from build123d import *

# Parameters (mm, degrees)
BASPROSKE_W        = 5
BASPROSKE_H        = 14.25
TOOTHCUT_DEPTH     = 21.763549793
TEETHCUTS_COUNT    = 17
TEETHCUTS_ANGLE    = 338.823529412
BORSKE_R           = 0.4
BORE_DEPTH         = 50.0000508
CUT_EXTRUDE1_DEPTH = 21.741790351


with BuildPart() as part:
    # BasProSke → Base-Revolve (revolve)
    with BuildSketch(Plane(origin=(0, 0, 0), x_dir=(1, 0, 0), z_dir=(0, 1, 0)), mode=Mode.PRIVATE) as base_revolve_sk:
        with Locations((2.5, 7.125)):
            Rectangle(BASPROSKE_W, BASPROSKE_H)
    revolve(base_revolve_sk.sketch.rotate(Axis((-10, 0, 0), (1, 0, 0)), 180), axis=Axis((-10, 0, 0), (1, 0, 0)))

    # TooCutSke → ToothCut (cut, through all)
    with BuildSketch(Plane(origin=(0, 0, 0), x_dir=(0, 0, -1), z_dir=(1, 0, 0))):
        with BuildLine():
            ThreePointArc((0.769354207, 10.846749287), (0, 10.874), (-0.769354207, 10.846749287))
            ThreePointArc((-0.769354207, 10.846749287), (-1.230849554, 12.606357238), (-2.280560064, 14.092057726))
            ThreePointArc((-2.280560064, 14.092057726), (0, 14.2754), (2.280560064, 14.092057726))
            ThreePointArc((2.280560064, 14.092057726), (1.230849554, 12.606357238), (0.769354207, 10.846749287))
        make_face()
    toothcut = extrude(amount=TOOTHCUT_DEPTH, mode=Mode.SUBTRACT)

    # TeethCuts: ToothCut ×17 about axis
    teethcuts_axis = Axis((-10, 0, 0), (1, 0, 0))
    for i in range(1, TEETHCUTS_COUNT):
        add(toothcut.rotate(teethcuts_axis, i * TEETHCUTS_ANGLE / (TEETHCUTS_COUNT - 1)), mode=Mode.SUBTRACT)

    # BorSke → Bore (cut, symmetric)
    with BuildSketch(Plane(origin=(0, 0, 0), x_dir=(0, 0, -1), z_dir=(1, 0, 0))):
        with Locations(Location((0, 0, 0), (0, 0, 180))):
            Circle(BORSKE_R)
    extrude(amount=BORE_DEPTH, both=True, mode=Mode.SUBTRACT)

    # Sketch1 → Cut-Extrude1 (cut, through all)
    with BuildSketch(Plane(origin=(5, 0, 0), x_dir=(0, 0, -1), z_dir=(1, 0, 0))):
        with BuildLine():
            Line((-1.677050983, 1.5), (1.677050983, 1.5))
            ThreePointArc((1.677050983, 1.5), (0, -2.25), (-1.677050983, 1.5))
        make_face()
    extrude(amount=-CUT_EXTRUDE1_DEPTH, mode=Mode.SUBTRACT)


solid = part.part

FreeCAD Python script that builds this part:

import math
import FreeCAD as App
import Part
import Sketcher
from FreeCAD import Vector
Q = App.Units.Quantity


def add_polygon(sketch, points):
    """Adds a closed chain of lines whose ends are joined by coincident constraints."""
    first, n = sketch.GeometryCount, len(points)
    for a, b in zip(points, points[1:] + points[:1]):
        sketch.addGeometry(Part.LineSegment(App.Vector(*a, 0), App.Vector(*b, 0)), False)
    for i in range(n):
        sketch.addConstraint(Sketcher.Constraint("Coincident", first + i, 2, first + (i + 1) % n, 1))

doc = App.newDocument("Part")
params = doc.addObject("Spreadsheet::Sheet", "Params")
for row, (alias, value) in enumerate([
    ("sketch1_width", "5 mm"),
    ("sketch1_height", "14.25 mm"),
    ("revolution_angle", "360 deg"),
    ("sketch2_radius", "5.1 mm"),
    ("sketch3_diameter", "0.8 mm"),
    ("pocket2_length", "100.000102 mm"),
    ("sketch4_radius", "2.25 mm"),
], start=1):
    params.set(f"A{row}", alias)
    params.set(f"B{row}", "=" + value)
    params.setAlias(f"B{row}", alias)

body = doc.addObject("PartDesign::Body", "Body")

# Sketch on XZ plane
sketch1 = body.newObject("Sketcher::SketchObject", "Sketch")
sketch1.AttachmentSupport = (doc.getObject("XZ_Plane"), [""])
sketch1.MapMode = "FlatFace"
add_polygon(sketch1, [(0, -14), (0, 0), (5, 0), (5, -14)])  # lines 0-3
sketch1.addConstraint([
    Sketcher.Constraint("Vertical", 0),
    Sketcher.Constraint("Horizontal", 1),
    Sketcher.Constraint("Vertical", 2),
    Sketcher.Constraint("Horizontal", 3),
    Sketcher.Constraint("Coincident", 0, 2, -1, 1),
    Sketcher.Constraint("DistanceX", 1, 1, 1, 2, Q("5 mm")),
    Sketcher.Constraint("DistanceY", 0, 1, 0, 2, Q("14.25 mm")),
])
sketch1.setExpression("Constraints[9]", "Params.sketch1_width")
sketch1.setExpression("Constraints[10]", "Params.sketch1_height")
revolution = body.newObject("PartDesign::Revolution", "Revolution")
revolution.Profile = sketch1
revolution.ReferenceAxis = (sketch1, ["H_Axis"])
revolution.setExpression("Angle", "Params.revolution_angle")

# Sketch on YZ plane
sketch2 = body.newObject("Sketcher::SketchObject", "Sketch001")
sketch2.AttachmentSupport = (doc.getObject("YZ_Plane"), [""])
sketch2.MapMode = "FlatFace"
sketch2.addGeometry([
    Part.ArcOfCircle(Part.Circle(Vector(0, 0, 0), Vector(0, 0, 1), 10.9), math.radians(-4.06), math.radians(4.06)),
    Part.ArcOfCircle(Part.Circle(Vector(10.5, -5.9, 0), Vector(0, 0, 1), 5.1), math.radians(44), math.radians(86)),
    Part.ArcOfCircle(Part.Circle(Vector(0, 0, 0), Vector(0, 0, 1), 14.3), math.radians(-9.19), math.radians(9.19)),
    Part.ArcOfCircle(Part.Circle(Vector(10.5, 5.9, 0), Vector(0, 0, 1), 5.1), math.radians(-86), math.radians(-44)),
], False)
sketch2.addConstraint([
    Sketcher.Constraint("Coincident", 0, 1, 1, 2),
    Sketcher.Constraint("Coincident", 1, 1, 2, 1),
    Sketcher.Constraint("Coincident", 2, 2, 3, 2),
    Sketcher.Constraint("Coincident", 3, 1, 0, 2),
    Sketcher.Constraint("Coincident", 0, 3, -1, 1),
    Sketcher.Constraint("Coincident", 2, 3, -1, 1),
    Sketcher.Constraint("Equal", 1, 3),
    Sketcher.Constraint("Symmetric", 1, 3, 3, 3, -1),
    Sketcher.Constraint("Radius", 1, Q("5.1 mm")),
    Sketcher.Constraint("Radius", 0, Q("10.874 mm")),
    Sketcher.Constraint("Radius", 2, Q("14.2754 mm")),
    Sketcher.Constraint("DistanceX", -1, 1, 1, 3, Q("10.453469 mm")),
    Sketcher.Constraint("DistanceX", -1, 1, 0, 1, Q("10.846749 mm")),
])
sketch2.setExpression("Constraints[8]", "Params.sketch2_radius")
pocket1 = body.newObject("PartDesign::Pocket", "Pocket")
pocket1.Profile = sketch2
pocket1.Type = "ThroughAll"
pocket1.Reversed = True
doc.recompute()

polarpattern = body.newObject("PartDesign::PolarPattern", "PolarPattern")
polarpattern.Originals = [pocket1]
polarpattern.Axis = (doc.getObject("X_Axis"), [""])
polarpattern.Angle = 360
polarpattern.Occurrences = 17
body.Tip = polarpattern

# Sketch on YZ plane
sketch3 = body.newObject("Sketcher::SketchObject", "Sketch002")
sketch3.AttachmentSupport = (doc.getObject("YZ_Plane"), [""])
sketch3.MapMode = "FlatFace"
sketch3.addGeometry(Part.Circle(Vector(0, 0, 0), Vector(0, 0, 1), 0.4), False)
sketch3.addConstraint([
    Sketcher.Constraint("Coincident", 0, 3, -1, 1),
    Sketcher.Constraint("Diameter", 0, Q("0.8 mm")),
])
sketch3.setExpression("Constraints[1]", "Params.sketch3_diameter")
pocket2 = body.newObject("PartDesign::Pocket", "Pocket001")
pocket2.Profile = sketch3
pocket2.setExpression("Length", "Params.pocket2_length")
pocket2.Midplane = True

# Sketch on YZ plane
sketch4 = body.newObject("Sketcher::SketchObject", "Sketch003")
sketch4.AttachmentSupport = (doc.getObject("YZ_Plane"), [""])
sketch4.MapMode = "FlatFace"
sketch4.AttachmentOffset = App.Placement(Vector(0, 0, 5), App.Rotation())
sketch4.addGeometry([
    Part.LineSegment(Vector(1.5, -1.7, 0), Vector(1.5, 1.7, 0)),
    Part.ArcOfCircle(Part.Circle(Vector(0, 0, 0), Vector(0, 0, 1), 2.2), math.radians(48), math.radians(312)),
], False)
sketch4.addConstraint([
    Sketcher.Constraint("Coincident", 0, 1, 1, 2),
    Sketcher.Constraint("Coincident", 1, 1, 0, 2),
    Sketcher.Constraint("Vertical", 0),
    Sketcher.Constraint("Coincident", 1, 3, -1, 1),
    Sketcher.Constraint("Radius", 1, Q("2.25 mm")),
    Sketcher.Constraint("DistanceX", -1, 1, 0, 1, Q("1.5 mm")),
])
sketch4.setExpression("Constraints[4]", "Params.sketch4_radius")
pocket3 = body.newObject("PartDesign::Pocket", "Pocket002")
pocket3.Profile = sketch4
pocket3.Type = "ThroughAll"

doc.recompute()
